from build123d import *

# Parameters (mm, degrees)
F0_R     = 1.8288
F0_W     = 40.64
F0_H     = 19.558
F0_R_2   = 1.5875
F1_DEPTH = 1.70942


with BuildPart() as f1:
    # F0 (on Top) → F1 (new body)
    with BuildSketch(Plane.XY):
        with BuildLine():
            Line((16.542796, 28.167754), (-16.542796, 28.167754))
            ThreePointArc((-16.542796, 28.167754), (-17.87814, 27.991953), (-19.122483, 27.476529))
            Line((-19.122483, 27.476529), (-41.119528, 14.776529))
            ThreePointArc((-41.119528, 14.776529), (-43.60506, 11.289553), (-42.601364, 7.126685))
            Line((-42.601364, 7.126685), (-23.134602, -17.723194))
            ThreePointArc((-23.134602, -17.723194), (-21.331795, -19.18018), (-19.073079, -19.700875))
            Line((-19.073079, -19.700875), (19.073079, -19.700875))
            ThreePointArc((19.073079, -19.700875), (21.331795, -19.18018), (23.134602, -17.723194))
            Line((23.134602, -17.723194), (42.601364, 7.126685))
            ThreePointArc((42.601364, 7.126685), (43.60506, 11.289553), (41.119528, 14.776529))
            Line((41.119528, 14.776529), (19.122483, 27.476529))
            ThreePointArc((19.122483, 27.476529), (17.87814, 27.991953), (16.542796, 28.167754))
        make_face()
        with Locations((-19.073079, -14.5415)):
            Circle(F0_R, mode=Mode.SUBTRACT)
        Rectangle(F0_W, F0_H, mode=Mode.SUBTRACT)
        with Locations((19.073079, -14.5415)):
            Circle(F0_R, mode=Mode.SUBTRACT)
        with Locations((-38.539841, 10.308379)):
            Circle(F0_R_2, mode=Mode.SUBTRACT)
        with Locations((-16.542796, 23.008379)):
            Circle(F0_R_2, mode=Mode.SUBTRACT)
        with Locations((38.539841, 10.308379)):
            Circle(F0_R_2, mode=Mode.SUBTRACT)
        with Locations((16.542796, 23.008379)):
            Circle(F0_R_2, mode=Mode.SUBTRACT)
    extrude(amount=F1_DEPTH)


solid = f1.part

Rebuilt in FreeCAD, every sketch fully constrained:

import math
import FreeCAD as App
import Part
import Sketcher
from FreeCAD import Vector
Q = App.Units.Quantity


def add_polygon(sketch, points):
    """Adds a closed chain of lines whose ends are joined by coincident constraints."""
    first, n = sketch.GeometryCount, len(points)
    for a, b in zip(points, points[1:] + points[:1]):
        sketch.addGeometry(Part.LineSegment(App.Vector(*a, 0), App.Vector(*b, 0)), False)
    for i in range(n):
        sketch.addConstraint(Sketcher.Constraint("Coincident", first + i, 2, first + (i + 1) % n, 1))

doc = App.newDocument("Part")
body = doc.addObject("PartDesign::Body", "Body")

# Sketch on XY plane
sketch1 = body.newObject("Sketcher::SketchObject", "Sketch")
sketch1.AttachmentSupport = (doc.getObject("XY_Plane"), [""])
sketch1.MapMode = "FlatFace"
sketch1.addGeometry(Part.LineSegment(Vector(16.542796, 28.167754, 0), Vector(-16.542796, 28.167754, 0)), False)  # 0
sketch1.addGeometry(Part.ArcOfCircle(Part.Circle(Vector(-16.542798, 23.008389, 0), Vector(0, 0, 1), 5.159365), math.radians(89.999973), math.radians(120.000025)), False)  # 1
sketch1.addGeometry(Part.LineSegment(Vector(-19.122483, 27.476529, 0), Vector(-41.119528, 14.776529, 0)), False)  # 2
sketch1.addGeometry(Part.ArcOfCircle(Part.Circle(Vector(-38.53984, 10.308379, 0), Vector(0, 0, 1), 5.159375), math.radians(120), math.radians(218.074245)), False)  # 3
sketch1.addGeometry(Part.LineSegment(Vector(-42.601364, 7.126685, 0), Vector(-23.134602, -17.723194, 0)), False)  # 4
sketch1.addGeometry(Part.ArcOfCircle(Part.Circle(Vector(-19.073079, -14.541502, 0), Vector(0, 0, 1), 5.159373), math.radians(-141.925767), math.radians(-89.999996)), False)  # 5
sketch1.addGeometry(Part.LineSegment(Vector(-19.073079, -19.700875, 0), Vector(19.073079, -19.700875, 0)), False)  # 6
sketch1.addGeometry(Part.ArcOfCircle(Part.Circle(Vector(19.073079, -14.541502, 0), Vector(0, 0, 1), 5.159373), math.radians(-90.000004), math.radians(-38.074233)), False)  # 7
sketch1.addGeometry(Part.LineSegment(Vector(23.134602, -17.723194, 0), Vector(42.601364, 7.126685, 0)), False)  # 8
sketch1.addGeometry(Part.ArcOfCircle(Part.Circle(Vector(38.53984, 10.308379, 0), Vector(0, 0, 1), 5.159375), math.radians(-38.074245), math.radians(60)), False)  # 9
sketch1.addGeometry(Part.LineSegment(Vector(41.119528, 14.776529, 0), Vector(19.122483, 27.476529, 0)), False)  # 10
sketch1.addGeometry(Part.ArcOfCircle(Part.Circle(Vector(16.542798, 23.008389, 0), Vector(0, 0, 1), 5.159365), math.radians(59.999975), math.radians(90.000027)), False)  # 11
sketch1.addGeometry(Part.Circle(Vector(-19.073079, -14.5415, 0), Vector(0, 0, 1), 1.8288), False)  # 12
sketch1.addGeometry(Part.Circle(Vector(19.073079, -14.5415, 0), Vector(0, 0, 1), 1.8288), False)  # 13
add_polygon(sketch1, [(20.32, -9.779), (-20.32, -9.779), (-20.32, 9.779), (20.32, 9.779)])  # lines 14-17
sketch1.addGeometry(Part.Circle(Vector(-38.539841, 10.308379, 0), Vector(0, 0, 1), 1.5875), False)  # 18
sketch1.addGeometry(Part.Circle(Vector(-16.542796, 23.008379, 0), Vector(0, 0, 1), 1.5875), False)  # 19
sketch1.addGeometry(Part.Circle(Vector(38.539841, 10.308379, 0), Vector(0, 0, 1), 1.5875), False)  # 20
sketch1.addGeometry(Part.Circle(Vector(16.542796, 23.008379, 0), Vector(0, 0, 1), 1.5875), False)  # 21
sketch1.addConstraint([
    Sketcher.Constraint("Tangent", 0, 2, 1, 1),
    Sketcher.Constraint("Tangent", 1, 2, 2, 1),
    Sketcher.Constraint("Tangent", 2, 2, 3, 1),
    Sketcher.Constraint("Tangent", 3, 2, 4, 1),
    Sketcher.Constraint("Tangent", 4, 2, 5, 1),
    Sketcher.Constraint("Tangent", 5, 2, 6, 1),
    Sketcher.Constraint("Tangent", 6, 2, 7, 1),
    Sketcher.Constraint("Tangent", 7, 2, 8, 1),
    Sketcher.Constraint("Tangent", 8, 2, 9, 1),
    Sketcher.Constraint("Tangent", 9, 2, 10, 1),
    Sketcher.Constraint("Tangent", 10, 2, 11, 1),
    Sketcher.Constraint("Tangent", 11, 2, 0, 1),
    Sketcher.Constraint("Horizontal", 0),
    Sketcher.Constraint("Horizontal", 6),
    Sketcher.Constraint("Horizontal", 14),
    Sketcher.Constraint("Vertical", 15),
    Sketcher.Constraint("Horizontal", 16),
    Sketcher.Constraint("Vertical", 17),
    Sketcher.Constraint("Coincident", 12, 3, 5, 3),
    Sketcher.Constraint("Coincident", 13, 3, 7, 3),
    Sketcher.Constraint("Coincident", 18, 3, 3, 3),
    Sketcher.Constraint("Coincident", 19, 3, 1, 3),
    Sketcher.Constraint("Coincident", 20, 3, 9, 3),
    Sketcher.Constraint("Coincident", 21, 3, 11, 3),
    Sketcher.Constraint("Equal", 5, 7),
    Sketcher.Constraint("Equal", 3, 9),
    Sketcher.Constraint("Equal", 1, 11),
    Sketcher.Constraint("Equal", 12, 13),
    Sketcher.Constraint("Equal", 18, 19),
    Sketcher.Constraint("Equal", 19, 20),
    Sketcher.Constraint("Equal", 20, 21),
    Sketcher.Constraint("Symmetric", 14, 2, 16, 2, -1, 1),
    Sketcher.Constraint("Symmetric", 3, 3, 9, 3, -2),
    Sketcher.Constraint("Horizontal", 4, 2, 7, 2),
    Sketcher.Constraint("Horizontal", 2, 2, 9, 2),
    Sketcher.Constraint("Distance", 2, Q("1 in")),
    Sketcher.Constraint("Diameter", 12, Q("0.144 in")),
    Sketcher.Constraint("Diameter", 18, Q("0.125 in")),
    Sketcher.Constraint("DistanceX", 14, 2, 14, 1, Q("1.6 in")),
    Sketcher.Constraint("Angle", 2, Q("-150 deg")),
    Sketcher.Constraint("Radius", 3, Q("0.203125 in")),
    Sketcher.Constraint("Radius", 5, Q("0.2031249 in")),
    Sketcher.Constraint("DistanceY", 15, 1, 15, 2, Q("0.77 in")),
    Sketcher.Constraint("DistanceY", 3, 3, 19, 3, Q("0.5 in")),
    Sketcher.Constraint("DistanceY", 12, 3, 14, 2, Q("0.1875 in")),
    Sketcher.Constraint("DistanceX", 1, 3, 7, 3, Q("1.4021999 in")),
    Sketcher.Constraint("DistanceX", 0, 2, 0, 1, 33.085592),
    Sketcher.Constraint("DistanceY", -1, 1, 1, 3, 23.008389),
])
pad1 = body.newObject("PartDesign::Pad", "Pad")
pad1.Profile = sketch1
pad1.Length = Q("0.0673 in")

doc.recompute()
